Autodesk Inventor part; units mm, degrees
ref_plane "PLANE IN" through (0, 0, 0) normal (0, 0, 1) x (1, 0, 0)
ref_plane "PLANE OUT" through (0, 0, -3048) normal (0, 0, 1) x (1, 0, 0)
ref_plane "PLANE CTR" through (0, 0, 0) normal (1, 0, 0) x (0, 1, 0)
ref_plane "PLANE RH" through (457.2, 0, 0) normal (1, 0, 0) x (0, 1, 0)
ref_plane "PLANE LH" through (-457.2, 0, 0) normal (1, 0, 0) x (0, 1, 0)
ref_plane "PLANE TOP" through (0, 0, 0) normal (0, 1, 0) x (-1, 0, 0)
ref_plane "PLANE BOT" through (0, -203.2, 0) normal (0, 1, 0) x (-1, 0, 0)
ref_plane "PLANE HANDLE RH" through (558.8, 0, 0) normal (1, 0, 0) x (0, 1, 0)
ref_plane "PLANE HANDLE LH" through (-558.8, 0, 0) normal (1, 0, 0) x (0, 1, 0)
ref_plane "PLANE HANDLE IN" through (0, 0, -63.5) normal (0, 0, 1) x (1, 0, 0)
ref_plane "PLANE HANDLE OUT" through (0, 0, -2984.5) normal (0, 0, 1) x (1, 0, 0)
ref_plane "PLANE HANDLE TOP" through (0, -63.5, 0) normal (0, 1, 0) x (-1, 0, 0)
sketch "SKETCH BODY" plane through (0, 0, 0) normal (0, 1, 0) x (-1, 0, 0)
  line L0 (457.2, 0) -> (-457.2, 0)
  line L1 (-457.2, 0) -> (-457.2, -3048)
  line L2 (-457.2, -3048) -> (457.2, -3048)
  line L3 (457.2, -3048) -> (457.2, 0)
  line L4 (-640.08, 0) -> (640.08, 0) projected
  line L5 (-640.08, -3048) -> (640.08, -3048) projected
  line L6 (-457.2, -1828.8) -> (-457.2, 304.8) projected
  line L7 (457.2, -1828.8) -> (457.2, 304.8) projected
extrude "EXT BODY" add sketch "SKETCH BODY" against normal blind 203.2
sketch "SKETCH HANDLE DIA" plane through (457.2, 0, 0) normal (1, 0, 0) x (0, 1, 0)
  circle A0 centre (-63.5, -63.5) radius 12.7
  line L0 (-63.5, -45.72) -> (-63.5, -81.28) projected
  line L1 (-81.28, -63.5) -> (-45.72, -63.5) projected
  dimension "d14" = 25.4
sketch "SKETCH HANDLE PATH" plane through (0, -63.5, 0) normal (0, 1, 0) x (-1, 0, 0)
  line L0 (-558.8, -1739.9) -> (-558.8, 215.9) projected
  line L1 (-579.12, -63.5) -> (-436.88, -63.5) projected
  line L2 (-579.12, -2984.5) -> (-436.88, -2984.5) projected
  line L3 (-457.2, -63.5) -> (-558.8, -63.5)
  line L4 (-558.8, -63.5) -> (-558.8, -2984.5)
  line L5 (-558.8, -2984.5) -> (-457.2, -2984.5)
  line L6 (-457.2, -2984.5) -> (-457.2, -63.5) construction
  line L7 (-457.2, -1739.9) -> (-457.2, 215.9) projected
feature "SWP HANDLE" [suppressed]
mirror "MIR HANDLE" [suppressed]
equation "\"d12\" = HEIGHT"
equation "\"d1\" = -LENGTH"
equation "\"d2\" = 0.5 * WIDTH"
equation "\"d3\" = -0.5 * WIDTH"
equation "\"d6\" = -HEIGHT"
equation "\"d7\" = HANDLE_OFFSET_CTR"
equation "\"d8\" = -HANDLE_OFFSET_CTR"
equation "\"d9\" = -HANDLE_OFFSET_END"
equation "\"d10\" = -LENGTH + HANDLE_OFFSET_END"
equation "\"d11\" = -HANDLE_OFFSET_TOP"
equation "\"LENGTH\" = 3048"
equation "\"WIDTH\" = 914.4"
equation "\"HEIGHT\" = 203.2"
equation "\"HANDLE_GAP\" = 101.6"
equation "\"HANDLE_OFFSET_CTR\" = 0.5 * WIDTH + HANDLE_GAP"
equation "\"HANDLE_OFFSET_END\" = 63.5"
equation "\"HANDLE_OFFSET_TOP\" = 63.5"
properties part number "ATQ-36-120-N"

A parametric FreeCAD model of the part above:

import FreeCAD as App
import Part
import Sketcher

V = App.Vector
Q = App.Units.Quantity

doc = App.newDocument("Part")
params = doc.addObject("Spreadsheet::Sheet", "Params")
for row, (alias, value) in enumerate([
    ("sketch1_width", "36 in"),
    ("sketch1_height", "120 in"),
    ("pad1_length", "8 in"),
], start=1):
    params.set(f"A{row}", alias)
    params.set(f"B{row}", "=" + value)
    params.setAlias(f"B{row}", alias)

body = doc.addObject("PartDesign::Body", "Body")

# Sketch on XZ plane
sketch1 = body.newObject("Sketcher::SketchObject", "Sketch")
sketch1.AttachmentSupport = (doc.getObject("XZ_Plane"), [""])
sketch1.MapMode = "FlatFace"
sketch1.addGeometry([
    Part.LineSegment(V(-457.2, -3048, 0), V(-457.2, 0, 0)),
    Part.LineSegment(V(-457.2, 0, 0), V(457.2, 0, 0)),
    Part.LineSegment(V(457.2, 0, 0), V(457.2, -3048, 0)),
    Part.LineSegment(V(457.2, -3048, 0), V(-457.2, -3048, 0)),
], False)
sketch1.addConstraint([
    Sketcher.Constraint("Coincident", 0, 2, 1, 1),
    Sketcher.Constraint("Coincident", 1, 2, 2, 1),
    Sketcher.Constraint("Coincident", 2, 2, 3, 1),
    Sketcher.Constraint("Coincident", 3, 2, 0, 1),
    Sketcher.Constraint("Vertical", 0),
    Sketcher.Constraint("Horizontal", 1),
    Sketcher.Constraint("Vertical", 2),
    Sketcher.Constraint("Horizontal", 3),
    Sketcher.Constraint("Symmetric", 0, 2, 1, 2, -1, 1),
    Sketcher.Constraint("DistanceX", 1, 1, 1, 2, Q("36 in")),
    Sketcher.Constraint("DistanceY", 0, 1, 0, 2, Q("120 in")),
])
sketch1.setExpression("Constraints[9]", "Params.sketch1_width")
sketch1.setExpression("Constraints[10]", "Params.sketch1_height")
pad1 = body.newObject("PartDesign::Pad", "Pad")
pad1.Profile = sketch1
pad1.setExpression("Length", "Params.pad1_length")

doc.recompute()
